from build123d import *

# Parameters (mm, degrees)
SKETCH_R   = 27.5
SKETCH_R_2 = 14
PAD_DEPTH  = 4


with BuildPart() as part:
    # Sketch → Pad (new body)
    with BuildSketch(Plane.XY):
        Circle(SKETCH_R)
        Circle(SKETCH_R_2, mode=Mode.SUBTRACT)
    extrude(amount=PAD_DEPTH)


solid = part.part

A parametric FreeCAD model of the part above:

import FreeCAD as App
import Part
import Sketcher

V = App.Vector

doc = App.newDocument("Part")
body = doc.addObject("PartDesign::Body", "Body")

sketch1 = body.newObject("Sketcher::SketchObject", "Sketch")
sketch1.AttachmentSupport = (doc.getObject("XY_Plane"), [""])
sketch1.MapMode = "FlatFace"
sketch1.addGeometry([
    Part.Circle(V(0, 0, 0), V(0, 0, 1), 28),
    Part.Circle(V(0, 0, 0), V(0, 0, 1), 14),
], False)
sketch1.addConstraint([
    Sketcher.Constraint("Coincident", 0, 3, -1, 1),
    Sketcher.Constraint("Coincident", 1, 3, -1, 1),
    Sketcher.Constraint("Diameter", 0, 55.0),
    Sketcher.Constraint("Diameter", 1, 28.0),
])
pad1 = body.newObject("PartDesign::Pad", "Pad")
pad1.Profile = sketch1
pad1.Length = 4

doc.recompute()
